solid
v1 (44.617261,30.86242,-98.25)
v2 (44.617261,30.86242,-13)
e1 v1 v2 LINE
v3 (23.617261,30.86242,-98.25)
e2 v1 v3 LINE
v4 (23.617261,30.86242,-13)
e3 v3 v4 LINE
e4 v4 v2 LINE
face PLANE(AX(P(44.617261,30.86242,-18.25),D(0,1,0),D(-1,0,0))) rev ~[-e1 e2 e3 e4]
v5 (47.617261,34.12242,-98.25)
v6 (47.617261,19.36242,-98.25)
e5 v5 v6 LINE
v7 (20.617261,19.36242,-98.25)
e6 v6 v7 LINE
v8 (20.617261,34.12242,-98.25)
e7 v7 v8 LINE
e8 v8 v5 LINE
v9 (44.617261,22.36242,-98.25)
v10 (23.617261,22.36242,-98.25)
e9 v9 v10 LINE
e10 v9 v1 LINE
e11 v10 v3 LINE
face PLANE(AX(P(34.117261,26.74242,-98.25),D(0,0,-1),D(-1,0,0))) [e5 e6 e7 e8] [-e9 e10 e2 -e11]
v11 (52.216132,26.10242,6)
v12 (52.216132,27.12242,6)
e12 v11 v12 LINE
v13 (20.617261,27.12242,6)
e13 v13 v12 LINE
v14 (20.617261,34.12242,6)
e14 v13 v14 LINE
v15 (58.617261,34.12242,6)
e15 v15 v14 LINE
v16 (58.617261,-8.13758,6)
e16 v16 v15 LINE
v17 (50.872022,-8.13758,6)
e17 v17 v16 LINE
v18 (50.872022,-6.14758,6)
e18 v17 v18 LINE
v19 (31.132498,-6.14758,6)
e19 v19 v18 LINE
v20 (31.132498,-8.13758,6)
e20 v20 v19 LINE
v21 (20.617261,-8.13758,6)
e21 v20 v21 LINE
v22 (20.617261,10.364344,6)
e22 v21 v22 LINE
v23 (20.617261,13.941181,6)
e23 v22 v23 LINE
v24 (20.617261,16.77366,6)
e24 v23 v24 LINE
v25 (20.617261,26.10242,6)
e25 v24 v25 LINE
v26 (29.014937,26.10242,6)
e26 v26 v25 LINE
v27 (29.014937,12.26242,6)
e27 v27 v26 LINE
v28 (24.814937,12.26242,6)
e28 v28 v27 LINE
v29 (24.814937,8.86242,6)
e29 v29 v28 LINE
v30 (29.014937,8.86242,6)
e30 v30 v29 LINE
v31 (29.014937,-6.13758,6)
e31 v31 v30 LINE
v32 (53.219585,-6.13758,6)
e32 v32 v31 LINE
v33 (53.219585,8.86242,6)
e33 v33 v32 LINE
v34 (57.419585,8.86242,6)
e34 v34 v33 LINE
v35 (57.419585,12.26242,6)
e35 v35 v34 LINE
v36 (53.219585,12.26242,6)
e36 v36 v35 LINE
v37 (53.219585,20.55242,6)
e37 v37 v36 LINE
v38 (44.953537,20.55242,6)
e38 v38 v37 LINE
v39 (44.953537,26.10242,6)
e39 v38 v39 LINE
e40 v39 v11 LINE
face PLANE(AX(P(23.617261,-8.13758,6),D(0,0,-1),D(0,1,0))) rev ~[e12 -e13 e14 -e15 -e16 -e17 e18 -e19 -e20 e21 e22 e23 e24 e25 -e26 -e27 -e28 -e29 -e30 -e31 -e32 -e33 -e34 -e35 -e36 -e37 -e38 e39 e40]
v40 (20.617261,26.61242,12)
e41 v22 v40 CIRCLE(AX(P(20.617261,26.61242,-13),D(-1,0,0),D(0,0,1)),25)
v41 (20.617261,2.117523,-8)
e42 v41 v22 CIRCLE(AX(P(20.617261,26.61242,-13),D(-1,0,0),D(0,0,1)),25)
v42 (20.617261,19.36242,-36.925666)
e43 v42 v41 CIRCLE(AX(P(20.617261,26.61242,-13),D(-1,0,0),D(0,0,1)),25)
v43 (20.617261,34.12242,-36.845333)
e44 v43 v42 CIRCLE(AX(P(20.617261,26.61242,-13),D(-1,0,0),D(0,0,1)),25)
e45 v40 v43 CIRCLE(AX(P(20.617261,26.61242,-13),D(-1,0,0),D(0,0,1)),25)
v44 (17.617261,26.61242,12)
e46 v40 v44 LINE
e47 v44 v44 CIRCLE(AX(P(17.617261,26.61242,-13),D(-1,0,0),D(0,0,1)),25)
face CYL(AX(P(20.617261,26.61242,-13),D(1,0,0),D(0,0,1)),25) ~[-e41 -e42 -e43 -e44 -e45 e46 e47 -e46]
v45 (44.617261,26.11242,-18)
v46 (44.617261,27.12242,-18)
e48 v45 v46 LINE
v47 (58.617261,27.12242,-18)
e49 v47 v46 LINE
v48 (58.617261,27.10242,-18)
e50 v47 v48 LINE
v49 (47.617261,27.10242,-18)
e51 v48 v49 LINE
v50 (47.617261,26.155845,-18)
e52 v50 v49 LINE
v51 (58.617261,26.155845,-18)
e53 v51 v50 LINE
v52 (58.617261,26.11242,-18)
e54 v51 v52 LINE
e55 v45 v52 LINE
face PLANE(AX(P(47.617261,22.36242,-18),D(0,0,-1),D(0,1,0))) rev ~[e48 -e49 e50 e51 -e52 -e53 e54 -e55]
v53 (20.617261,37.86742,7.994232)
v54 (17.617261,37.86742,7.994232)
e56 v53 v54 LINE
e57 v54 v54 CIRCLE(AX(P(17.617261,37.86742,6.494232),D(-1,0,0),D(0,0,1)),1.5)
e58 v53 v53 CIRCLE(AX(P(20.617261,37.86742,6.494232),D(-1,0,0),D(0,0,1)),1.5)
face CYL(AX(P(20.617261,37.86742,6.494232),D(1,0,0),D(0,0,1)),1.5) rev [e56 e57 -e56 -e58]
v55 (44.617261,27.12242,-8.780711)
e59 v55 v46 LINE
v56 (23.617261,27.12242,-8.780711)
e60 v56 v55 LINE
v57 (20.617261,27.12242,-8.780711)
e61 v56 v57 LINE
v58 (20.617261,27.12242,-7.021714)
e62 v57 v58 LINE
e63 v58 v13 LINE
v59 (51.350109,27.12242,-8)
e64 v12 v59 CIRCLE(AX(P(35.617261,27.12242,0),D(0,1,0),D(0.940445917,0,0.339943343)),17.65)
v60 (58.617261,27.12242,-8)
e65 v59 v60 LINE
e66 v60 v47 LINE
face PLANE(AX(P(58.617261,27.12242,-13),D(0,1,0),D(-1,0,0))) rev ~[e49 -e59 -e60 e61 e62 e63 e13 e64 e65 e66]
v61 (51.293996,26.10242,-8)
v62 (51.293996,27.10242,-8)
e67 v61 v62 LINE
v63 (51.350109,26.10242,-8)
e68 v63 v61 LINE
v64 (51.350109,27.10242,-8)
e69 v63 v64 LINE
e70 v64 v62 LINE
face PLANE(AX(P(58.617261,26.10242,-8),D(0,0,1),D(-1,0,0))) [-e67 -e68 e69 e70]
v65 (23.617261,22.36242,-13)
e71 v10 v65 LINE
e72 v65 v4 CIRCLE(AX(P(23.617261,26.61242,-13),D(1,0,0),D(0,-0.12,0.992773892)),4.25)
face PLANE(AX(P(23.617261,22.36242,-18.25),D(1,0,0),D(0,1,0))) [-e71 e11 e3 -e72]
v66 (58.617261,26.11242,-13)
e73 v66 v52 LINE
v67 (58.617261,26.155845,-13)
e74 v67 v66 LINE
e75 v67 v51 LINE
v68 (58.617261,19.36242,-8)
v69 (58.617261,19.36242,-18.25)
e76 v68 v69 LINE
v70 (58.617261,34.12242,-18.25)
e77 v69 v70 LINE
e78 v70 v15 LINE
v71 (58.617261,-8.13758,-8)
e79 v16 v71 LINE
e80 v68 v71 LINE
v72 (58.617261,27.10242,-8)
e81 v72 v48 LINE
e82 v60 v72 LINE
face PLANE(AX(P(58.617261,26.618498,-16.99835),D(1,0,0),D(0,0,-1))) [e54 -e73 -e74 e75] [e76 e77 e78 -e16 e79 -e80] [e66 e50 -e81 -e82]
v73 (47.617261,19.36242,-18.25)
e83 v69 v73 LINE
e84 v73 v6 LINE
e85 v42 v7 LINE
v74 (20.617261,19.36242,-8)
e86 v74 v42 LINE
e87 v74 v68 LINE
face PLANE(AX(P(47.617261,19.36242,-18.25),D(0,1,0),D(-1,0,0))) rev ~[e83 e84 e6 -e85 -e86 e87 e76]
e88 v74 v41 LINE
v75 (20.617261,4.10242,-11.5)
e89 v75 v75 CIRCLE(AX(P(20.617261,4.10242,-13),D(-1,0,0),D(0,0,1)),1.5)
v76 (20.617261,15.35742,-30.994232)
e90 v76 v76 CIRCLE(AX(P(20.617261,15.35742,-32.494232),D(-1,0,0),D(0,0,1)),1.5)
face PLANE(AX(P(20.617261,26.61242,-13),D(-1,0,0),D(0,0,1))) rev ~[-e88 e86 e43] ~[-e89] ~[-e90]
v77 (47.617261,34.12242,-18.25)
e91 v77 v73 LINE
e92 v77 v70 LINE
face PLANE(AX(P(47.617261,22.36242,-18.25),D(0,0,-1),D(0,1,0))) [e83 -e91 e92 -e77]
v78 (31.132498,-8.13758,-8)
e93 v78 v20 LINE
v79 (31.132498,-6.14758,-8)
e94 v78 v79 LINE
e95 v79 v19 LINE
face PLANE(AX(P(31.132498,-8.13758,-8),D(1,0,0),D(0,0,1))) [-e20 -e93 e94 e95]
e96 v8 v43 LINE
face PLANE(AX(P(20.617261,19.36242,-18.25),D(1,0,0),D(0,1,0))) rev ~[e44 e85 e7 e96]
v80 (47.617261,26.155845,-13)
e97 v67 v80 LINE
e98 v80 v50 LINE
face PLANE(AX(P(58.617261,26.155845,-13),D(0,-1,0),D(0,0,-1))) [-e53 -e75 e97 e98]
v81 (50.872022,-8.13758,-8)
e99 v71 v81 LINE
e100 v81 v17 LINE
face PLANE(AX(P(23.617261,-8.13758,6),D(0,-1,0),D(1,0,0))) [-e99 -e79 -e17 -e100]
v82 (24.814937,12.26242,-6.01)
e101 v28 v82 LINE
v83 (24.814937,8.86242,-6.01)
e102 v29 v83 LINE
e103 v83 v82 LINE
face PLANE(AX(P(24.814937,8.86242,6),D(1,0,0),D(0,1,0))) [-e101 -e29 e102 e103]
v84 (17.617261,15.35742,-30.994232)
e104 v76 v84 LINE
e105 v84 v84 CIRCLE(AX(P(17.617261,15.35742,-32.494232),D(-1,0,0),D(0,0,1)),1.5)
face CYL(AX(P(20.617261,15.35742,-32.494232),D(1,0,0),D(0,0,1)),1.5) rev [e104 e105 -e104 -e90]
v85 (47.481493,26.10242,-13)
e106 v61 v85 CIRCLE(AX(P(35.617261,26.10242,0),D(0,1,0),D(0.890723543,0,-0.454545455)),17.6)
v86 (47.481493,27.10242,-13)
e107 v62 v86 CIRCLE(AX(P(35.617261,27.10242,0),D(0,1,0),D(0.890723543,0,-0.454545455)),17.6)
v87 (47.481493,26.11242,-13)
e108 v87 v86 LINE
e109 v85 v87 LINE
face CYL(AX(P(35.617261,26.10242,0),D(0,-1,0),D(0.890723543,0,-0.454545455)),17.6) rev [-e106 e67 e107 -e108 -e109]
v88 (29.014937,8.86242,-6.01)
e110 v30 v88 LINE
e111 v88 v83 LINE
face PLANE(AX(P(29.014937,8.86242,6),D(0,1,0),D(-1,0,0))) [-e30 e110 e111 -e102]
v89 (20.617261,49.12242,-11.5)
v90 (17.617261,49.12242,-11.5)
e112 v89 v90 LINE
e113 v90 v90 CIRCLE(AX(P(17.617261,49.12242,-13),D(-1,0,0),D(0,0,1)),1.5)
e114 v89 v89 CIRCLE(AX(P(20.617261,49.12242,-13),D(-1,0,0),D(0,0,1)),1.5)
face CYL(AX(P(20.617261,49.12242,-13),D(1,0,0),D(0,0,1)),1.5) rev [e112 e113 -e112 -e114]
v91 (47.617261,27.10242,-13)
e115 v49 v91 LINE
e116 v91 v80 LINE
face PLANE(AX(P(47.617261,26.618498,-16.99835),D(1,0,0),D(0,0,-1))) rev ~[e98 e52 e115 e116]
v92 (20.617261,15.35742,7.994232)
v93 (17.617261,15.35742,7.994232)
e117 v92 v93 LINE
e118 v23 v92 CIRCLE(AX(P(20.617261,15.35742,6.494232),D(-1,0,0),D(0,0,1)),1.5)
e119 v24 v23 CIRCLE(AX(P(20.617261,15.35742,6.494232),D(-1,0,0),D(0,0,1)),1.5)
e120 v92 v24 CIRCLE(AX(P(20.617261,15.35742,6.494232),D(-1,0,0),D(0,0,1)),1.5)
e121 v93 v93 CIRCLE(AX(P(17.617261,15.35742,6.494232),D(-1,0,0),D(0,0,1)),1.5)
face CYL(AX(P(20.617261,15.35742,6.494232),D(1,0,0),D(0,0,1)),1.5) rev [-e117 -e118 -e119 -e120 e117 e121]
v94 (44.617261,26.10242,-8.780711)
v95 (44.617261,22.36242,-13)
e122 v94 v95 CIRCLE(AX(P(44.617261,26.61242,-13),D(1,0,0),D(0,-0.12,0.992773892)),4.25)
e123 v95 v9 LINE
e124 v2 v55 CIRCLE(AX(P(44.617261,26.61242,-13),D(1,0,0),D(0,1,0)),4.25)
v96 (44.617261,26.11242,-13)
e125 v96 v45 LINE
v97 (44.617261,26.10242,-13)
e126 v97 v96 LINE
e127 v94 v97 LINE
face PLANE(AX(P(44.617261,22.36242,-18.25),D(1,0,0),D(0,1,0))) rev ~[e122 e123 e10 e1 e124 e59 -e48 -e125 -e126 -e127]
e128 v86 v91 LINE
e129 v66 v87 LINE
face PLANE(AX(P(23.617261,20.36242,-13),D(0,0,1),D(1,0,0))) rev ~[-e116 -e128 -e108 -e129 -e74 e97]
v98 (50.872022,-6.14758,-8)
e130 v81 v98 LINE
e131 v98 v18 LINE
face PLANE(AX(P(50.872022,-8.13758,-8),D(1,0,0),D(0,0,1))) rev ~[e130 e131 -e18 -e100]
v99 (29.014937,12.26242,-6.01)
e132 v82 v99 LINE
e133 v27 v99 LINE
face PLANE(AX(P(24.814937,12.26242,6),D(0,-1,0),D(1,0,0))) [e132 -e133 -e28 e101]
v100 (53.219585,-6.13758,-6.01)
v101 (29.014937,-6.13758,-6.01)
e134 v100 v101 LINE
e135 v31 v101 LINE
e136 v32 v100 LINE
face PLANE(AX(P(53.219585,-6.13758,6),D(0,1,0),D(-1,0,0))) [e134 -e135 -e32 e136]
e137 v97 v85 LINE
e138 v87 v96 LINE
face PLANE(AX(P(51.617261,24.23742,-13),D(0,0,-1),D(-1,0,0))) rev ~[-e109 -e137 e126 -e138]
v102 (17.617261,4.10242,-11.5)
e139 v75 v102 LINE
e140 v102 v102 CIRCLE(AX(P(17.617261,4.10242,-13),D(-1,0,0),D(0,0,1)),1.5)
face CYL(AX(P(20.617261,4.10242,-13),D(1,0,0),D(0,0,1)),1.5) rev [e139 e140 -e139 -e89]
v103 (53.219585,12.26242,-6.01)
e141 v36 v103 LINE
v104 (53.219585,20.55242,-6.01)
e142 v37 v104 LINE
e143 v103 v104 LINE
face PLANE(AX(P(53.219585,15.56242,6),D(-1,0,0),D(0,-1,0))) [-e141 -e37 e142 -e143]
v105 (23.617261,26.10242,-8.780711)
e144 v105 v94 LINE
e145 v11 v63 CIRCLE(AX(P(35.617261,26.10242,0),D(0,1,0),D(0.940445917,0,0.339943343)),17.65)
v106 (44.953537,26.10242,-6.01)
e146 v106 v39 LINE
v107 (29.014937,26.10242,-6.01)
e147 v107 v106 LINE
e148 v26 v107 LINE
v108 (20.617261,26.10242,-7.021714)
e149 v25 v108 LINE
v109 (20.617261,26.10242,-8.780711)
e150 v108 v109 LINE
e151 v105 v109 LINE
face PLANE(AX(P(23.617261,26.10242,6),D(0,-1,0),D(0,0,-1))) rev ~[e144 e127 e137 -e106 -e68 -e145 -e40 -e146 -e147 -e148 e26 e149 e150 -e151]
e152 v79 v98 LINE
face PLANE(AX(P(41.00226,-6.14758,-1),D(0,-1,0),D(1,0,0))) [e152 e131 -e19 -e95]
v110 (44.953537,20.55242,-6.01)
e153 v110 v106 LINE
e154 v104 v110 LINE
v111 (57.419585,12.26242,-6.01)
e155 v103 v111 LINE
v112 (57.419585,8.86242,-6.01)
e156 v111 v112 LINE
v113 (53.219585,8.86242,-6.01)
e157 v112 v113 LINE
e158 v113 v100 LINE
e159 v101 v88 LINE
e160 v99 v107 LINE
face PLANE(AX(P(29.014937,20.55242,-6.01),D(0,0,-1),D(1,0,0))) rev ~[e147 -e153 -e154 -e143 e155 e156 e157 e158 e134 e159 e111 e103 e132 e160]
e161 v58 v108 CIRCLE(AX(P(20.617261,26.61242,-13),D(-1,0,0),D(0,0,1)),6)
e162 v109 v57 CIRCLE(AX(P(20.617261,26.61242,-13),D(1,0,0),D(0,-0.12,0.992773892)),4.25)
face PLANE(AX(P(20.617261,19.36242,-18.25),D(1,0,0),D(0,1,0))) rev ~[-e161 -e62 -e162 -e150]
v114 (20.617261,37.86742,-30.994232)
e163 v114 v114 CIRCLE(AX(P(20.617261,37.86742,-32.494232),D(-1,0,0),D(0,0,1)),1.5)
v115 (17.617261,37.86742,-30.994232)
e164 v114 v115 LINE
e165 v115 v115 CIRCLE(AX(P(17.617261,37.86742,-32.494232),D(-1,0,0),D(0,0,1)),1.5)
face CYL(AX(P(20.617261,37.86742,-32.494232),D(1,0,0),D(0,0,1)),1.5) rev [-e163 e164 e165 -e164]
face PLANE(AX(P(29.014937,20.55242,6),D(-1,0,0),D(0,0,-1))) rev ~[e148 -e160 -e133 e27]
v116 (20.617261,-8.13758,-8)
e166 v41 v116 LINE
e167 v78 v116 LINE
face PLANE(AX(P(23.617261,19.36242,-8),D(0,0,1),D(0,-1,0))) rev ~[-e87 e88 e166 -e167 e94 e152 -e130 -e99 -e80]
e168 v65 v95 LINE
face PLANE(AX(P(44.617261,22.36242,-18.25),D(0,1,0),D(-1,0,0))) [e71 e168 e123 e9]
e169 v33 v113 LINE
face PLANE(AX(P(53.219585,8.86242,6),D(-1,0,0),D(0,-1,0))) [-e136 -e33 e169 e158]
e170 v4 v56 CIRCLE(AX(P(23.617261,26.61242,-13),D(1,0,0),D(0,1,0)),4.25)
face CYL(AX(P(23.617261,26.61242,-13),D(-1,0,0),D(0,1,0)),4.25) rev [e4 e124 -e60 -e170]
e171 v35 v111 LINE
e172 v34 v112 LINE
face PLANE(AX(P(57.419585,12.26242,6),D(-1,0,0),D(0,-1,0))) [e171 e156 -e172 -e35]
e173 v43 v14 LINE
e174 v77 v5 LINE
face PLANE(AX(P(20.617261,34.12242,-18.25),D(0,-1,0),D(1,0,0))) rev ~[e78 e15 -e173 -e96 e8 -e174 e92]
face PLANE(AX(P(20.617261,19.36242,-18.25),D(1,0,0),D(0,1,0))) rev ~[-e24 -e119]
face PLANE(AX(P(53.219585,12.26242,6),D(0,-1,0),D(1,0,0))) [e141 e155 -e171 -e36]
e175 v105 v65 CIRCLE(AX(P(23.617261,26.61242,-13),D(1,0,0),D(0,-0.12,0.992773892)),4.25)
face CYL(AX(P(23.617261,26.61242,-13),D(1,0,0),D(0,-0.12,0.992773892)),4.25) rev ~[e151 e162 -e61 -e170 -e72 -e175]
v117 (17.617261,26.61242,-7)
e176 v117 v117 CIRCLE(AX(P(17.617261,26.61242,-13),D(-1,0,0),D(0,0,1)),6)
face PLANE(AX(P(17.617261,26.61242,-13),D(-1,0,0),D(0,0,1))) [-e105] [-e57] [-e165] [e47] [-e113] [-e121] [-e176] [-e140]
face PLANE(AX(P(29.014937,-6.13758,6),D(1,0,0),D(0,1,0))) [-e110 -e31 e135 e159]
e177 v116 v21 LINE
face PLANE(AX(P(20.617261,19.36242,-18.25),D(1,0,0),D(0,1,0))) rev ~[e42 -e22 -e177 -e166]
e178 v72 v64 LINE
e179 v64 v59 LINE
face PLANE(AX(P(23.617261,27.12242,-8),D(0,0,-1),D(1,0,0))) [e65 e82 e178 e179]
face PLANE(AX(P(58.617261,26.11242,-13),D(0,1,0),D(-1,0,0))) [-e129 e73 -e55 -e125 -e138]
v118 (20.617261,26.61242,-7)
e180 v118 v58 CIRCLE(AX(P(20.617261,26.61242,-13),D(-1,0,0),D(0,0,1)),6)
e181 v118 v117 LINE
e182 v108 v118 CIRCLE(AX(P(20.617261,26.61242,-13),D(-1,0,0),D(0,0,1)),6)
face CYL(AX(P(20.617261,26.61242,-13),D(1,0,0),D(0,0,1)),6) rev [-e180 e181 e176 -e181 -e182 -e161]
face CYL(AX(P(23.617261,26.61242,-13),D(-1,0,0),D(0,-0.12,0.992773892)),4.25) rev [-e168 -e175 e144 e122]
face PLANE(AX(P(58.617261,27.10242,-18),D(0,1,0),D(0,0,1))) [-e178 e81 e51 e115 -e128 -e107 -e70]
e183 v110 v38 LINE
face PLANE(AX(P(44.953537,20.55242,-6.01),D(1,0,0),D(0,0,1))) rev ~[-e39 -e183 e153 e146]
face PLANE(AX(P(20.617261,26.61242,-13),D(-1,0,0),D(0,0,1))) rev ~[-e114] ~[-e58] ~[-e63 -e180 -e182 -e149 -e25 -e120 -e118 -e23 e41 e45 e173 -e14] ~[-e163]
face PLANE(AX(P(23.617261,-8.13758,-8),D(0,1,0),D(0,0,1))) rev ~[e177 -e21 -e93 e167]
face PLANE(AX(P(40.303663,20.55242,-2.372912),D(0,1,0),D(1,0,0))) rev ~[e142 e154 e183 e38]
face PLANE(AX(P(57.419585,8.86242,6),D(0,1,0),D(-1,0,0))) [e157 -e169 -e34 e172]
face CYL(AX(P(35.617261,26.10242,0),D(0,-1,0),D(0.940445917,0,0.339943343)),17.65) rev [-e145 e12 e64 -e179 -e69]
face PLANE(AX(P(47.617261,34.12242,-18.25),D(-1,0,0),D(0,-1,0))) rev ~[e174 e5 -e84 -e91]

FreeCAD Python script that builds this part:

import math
import FreeCAD as App
import Part
import Sketcher

V = App.Vector


def add_polygon(sketch, points):
    """Adds a closed chain of lines whose ends are joined by coincident constraints."""
    first, n = sketch.GeometryCount, len(points)
    for a, b in zip(points, points[1:] + points[:1]):
        sketch.addGeometry(Part.LineSegment(App.Vector(*a, 0), App.Vector(*b, 0)), False)
    for i in range(n):
        sketch.addConstraint(Sketcher.Constraint("Coincident", first + i, 2, first + (i + 1) % n, 1))

doc = App.newDocument("Part")
body = doc.addObject("PartDesign::Body", "Body")

# Sketch on XY plane
sketch1 = doc.addObject("Sketcher::SketchObject", "Sketch")
body.addObject(sketch1)
sketch1.AttachmentSupport = (doc.XY_Plane, [""])
sketch1.MapMode = "FlatFace"
sketch1.AttachmentOffset = App.Placement(V(0, 0, 6), App.Rotation())
add_polygon(sketch1, [(58.6, 15.6), (53.2, 15.6), (53.2, 12.3), (57.4, 12.3), (57.4, 8.9), (53.2, 8.9), (53.2, -6.1), (29, -6.1), (29, 8.9), (24.8, 8.9), (24.8, 12.3), (29, 12.3), (29, 15.6), (23.6, 15.6), (23.6, -8.1), (58.6, -8.1)])  # lines 0-15
sketch1.addConstraint(Sketcher.Constraint("Horizontal", 0))
sketch1.addConstraint(Sketcher.Constraint("Vertical", 1))
sketch1.addConstraint(Sketcher.Constraint("Horizontal", 2))
sketch1.addConstraint(Sketcher.Constraint("Vertical", 3))
sketch1.addConstraint(Sketcher.Constraint("Horizontal", 4))
sketch1.addConstraint(Sketcher.Constraint("Vertical", 5))
sketch1.addConstraint(Sketcher.Constraint("Horizontal", 6))
sketch1.addConstraint(Sketcher.Constraint("Vertical", 7))
sketch1.addConstraint(Sketcher.Constraint("Horizontal", 8))
sketch1.addConstraint(Sketcher.Constraint("Vertical", 9))
sketch1.addConstraint(Sketcher.Constraint("Horizontal", 10))
sketch1.addConstraint(Sketcher.Constraint("Vertical", 11))
sketch1.addConstraint(Sketcher.Constraint("Horizontal", 12))
sketch1.addConstraint(Sketcher.Constraint("Vertical", 13))
sketch1.addConstraint(Sketcher.Constraint("Horizontal", 14))
sketch1.addConstraint(Sketcher.Constraint("Vertical", 15))
sketch1.addConstraint(Sketcher.Constraint("Horizontal", 4, 2, 7, 2))
sketch1.addConstraint(Sketcher.Constraint("Horizontal", 2, 2, 9, 2))
sketch1.addConstraint(Sketcher.Constraint("Horizontal", 0, 2, 11, 2))
sketch1.addConstraint(Sketcher.Constraint("Vertical", 1, 2, 4, 2))
sketch1.addConstraint(Sketcher.Constraint("Vertical", 7, 2, 10, 2))
sketch1.addConstraint(Sketcher.Constraint("Equal", 4, 8))
sketch1.addConstraint(Sketcher.Constraint("Equal", 0, 12))
sketch1.addConstraint(Sketcher.Constraint("DistanceX", 14, 1, 14, 2, 35.0))
sketch1.addConstraint(Sketcher.Constraint("DistanceY", 5, 2, 5, 1, 15.0))
sketch1.addConstraint(Sketcher.Constraint("DistanceX", 2, 1, 2, 2, 4.2))
sketch1.addConstraint(Sketcher.Constraint("DistanceY", 1, 2, 1, 1, 3.3))
sketch1.addConstraint(Sketcher.Constraint("DistanceY", 3, 2, 3, 1, 3.4))
sketch1.addConstraint(Sketcher.Constraint("DistanceY", 13, 2, 13, 1, 23.7))
sketch1.addConstraint(Sketcher.Constraint("DistanceX", 6, 2, 6, 1, 24.204649))
sketch1.addConstraint(Sketcher.Constraint("DistanceY", -1, 1, 0, 2, 15.56242))
sketch1.addConstraint(Sketcher.Constraint("DistanceX", -1, 1, 12, 2, 23.617261))
pad1 = doc.addObject("PartDesign::Pad", "Pad")
body.addObject(pad1)
pad1.Profile = sketch1
pad1.Length = 14
pad1.Reversed = True

# Sketch on XY plane
sketch2 = doc.addObject("Sketcher::SketchObject", "Sketch001")
body.addObject(sketch2)
sketch2.AttachmentSupport = (doc.XY_Plane, [""])
sketch2.MapMode = "FlatFace"
sketch2.AttachmentOffset = App.Placement(V(0, 0, -8), App.Rotation())
add_polygon(sketch2, [(59, 16), (59, -8), (24, -8), (24, 16)])  # lines 0-3
sketch2.addConstraint(Sketcher.Constraint("Vertical", 0))
sketch2.addConstraint(Sketcher.Constraint("Horizontal", 1))
sketch2.addConstraint(Sketcher.Constraint("Vertical", 2))
sketch2.addConstraint(Sketcher.Constraint("Horizontal", 3))
sketch2.addConstraint(Sketcher.Constraint("DistanceY", 0, 2, 0, 1, 23.7))
sketch2.addConstraint(Sketcher.Constraint("DistanceX", 1, 2, 1, 1, 34.989164))
sketch2.addConstraint(Sketcher.Constraint("DistanceX", -1, 1, 0, 2, 58.617261))
sketch2.addConstraint(Sketcher.Constraint("DistanceY", 0, 2, -1, 1, 8.13758))
pad2 = doc.addObject("PartDesign::Pad", "Pad001")
body.addObject(pad2)
pad2.Profile = sketch2
pad2.Length = 1.99

# Sketch on XZ plane
sketch3 = doc.addObject("Sketcher::SketchObject", "Sketch002")
body.addObject(sketch3)
sketch3.AttachmentSupport = (doc.XZ_Plane, [""])
sketch3.MapMode = "FlatFace"
sketch3.AttachmentOffset = App.Placement(V(0, 0, 8.13758), App.Rotation())
add_polygon(sketch3, [(31, 6), (31, -8), (51, -8), (51, 6)])  # lines 0-3
sketch3.addConstraint(Sketcher.Constraint("Vertical", 0))
sketch3.addConstraint(Sketcher.Constraint("Horizontal", 1))
sketch3.addConstraint(Sketcher.Constraint("Vertical", 2))
sketch3.addConstraint(Sketcher.Constraint("Horizontal", 3))
sketch3.addConstraint(Sketcher.Constraint("DistanceY", 0, 2, 0, 1, 14.0))
sketch3.addConstraint(Sketcher.Constraint("DistanceY", 0, 2, -1, 1, 8.0))
sketch3.addConstraint(Sketcher.Constraint("DistanceX", -1, 1, 0, 2, 31.132498))
sketch3.addConstraint(Sketcher.Constraint("DistanceX", 1, 1, 1, 2, 19.739524))
pocket1 = doc.addObject("PartDesign::Pocket", "Pocket")
body.addObject(pocket1)
pocket1.Profile = sketch3
pocket1.Length = 1.99

# Sketch on XZ plane
sketch4 = doc.addObject("Sketcher::SketchObject", "Sketch003")
body.addObject(sketch4)
sketch4.AttachmentSupport = (doc.XZ_Plane, [""])
sketch4.MapMode = "FlatFace"
sketch4.AttachmentOffset = App.Placement(V(0, 0, -15.56242), App.Rotation())
add_polygon(sketch4, [(24, 6), (29, 6), (29, -6), (53, -6), (53, 6), (59, 6), (59, -8), (24, -8)])  # lines 0-7
sketch4.addConstraint(Sketcher.Constraint("Horizontal", 0))
sketch4.addConstraint(Sketcher.Constraint("Vertical", 1))
sketch4.addConstraint(Sketcher.Constraint("Horizontal", 2))
sketch4.addConstraint(Sketcher.Constraint("Vertical", 3))
sketch4.addConstraint(Sketcher.Constraint("Horizontal", 4))
sketch4.addConstraint(Sketcher.Constraint("Vertical", 5))
sketch4.addConstraint(Sketcher.Constraint("Horizontal", 6))
sketch4.addConstraint(Sketcher.Constraint("Vertical", 7))
sketch4.addConstraint(Sketcher.Constraint("Horizontal", 0, 2, 3, 2))
sketch4.addConstraint(Sketcher.Constraint("Equal", 0, 4))
sketch4.addConstraint(Sketcher.Constraint("DistanceX", 6, 2, 6, 1, 35.0))
sketch4.addConstraint(Sketcher.Constraint("DistanceY", 5, 2, 5, 1, 14.0))
sketch4.addConstraint(Sketcher.Constraint("DistanceY", -1, 1, 0, 2, 6.0))
sketch4.addConstraint(Sketcher.Constraint("DistanceY", 1, 2, 1, 1, 12.01))
sketch4.addConstraint(Sketcher.Constraint("DistanceX", 2, 1, 2, 2, 24.204649))
sketch4.addConstraint(Sketcher.Constraint("DistanceX", -1, 1, 4, 2, 58.617261))
pad3 = doc.addObject("PartDesign::Pad", "Pad002")
body.addObject(pad3)
pad3.Profile = sketch4
pad3.Length = 4.99
pad3.Reversed = True

# Sketch on XZ plane
sketch5 = doc.addObject("Sketcher::SketchObject", "Sketch004")
body.addObject(sketch5)
sketch5.AttachmentSupport = (doc.XZ_Plane, [""])
sketch5.MapMode = "FlatFace"
sketch5.AttachmentOffset = App.Placement(V(0, 0, -20.55242), App.Rotation())
add_polygon(sketch5, [(24, 6), (29, 6), (29, -6), (45, -6), (45, 6), (59, 6), (59, -8), (24, -8)])  # lines 0-7
sketch5.addConstraint(Sketcher.Constraint("Horizontal", 0))
sketch5.addConstraint(Sketcher.Constraint("Vertical", 1))
sketch5.addConstraint(Sketcher.Constraint("Horizontal", 2))
sketch5.addConstraint(Sketcher.Constraint("Vertical", 3))
sketch5.addConstraint(Sketcher.Constraint("Horizontal", 4))
sketch5.addConstraint(Sketcher.Constraint("Vertical", 5))
sketch5.addConstraint(Sketcher.Constraint("Horizontal", 6))
sketch5.addConstraint(Sketcher.Constraint("Vertical", 7))
sketch5.addConstraint(Sketcher.Constraint("Horizontal", 0, 2, 3, 2))
sketch5.addConstraint(Sketcher.Constraint("DistanceX", 6, 2, 6, 1, 35.0))
sketch5.addConstraint(Sketcher.Constraint("DistanceY", 5, 2, 5, 1, 14.0))
sketch5.addConstraint(Sketcher.Constraint("DistanceY", -1, 1, 0, 2, 6.0))
sketch5.addConstraint(Sketcher.Constraint("DistanceY", 1, 2, 1, 1, 12.01))
sketch5.addConstraint(Sketcher.Constraint("DistanceX", 2, 1, 2, 2, 15.9386))
sketch5.addConstraint(Sketcher.Constraint("DistanceX", 0, 1, 0, 2, 5.397676))
sketch5.addConstraint(Sketcher.Constraint("DistanceX", -1, 1, 4, 2, 58.617261))
pad4 = doc.addObject("PartDesign::Pad", "Pad003")
body.addObject(pad4)
pad4.Profile = sketch5
pad4.Length = 5.55
pad4.Reversed = True

# Sketch on XZ plane
sketch6 = doc.addObject("Sketcher::SketchObject", "Sketch005")
body.addObject(sketch6)
sketch6.AttachmentSupport = (doc.XZ_Plane, [""])
sketch6.MapMode = "FlatFace"
sketch6.AttachmentOffset = App.Placement(V(0, 0, -26.10242), App.Rotation())
sketch6.addGeometry(Part.LineSegment(V(59, -8, 0), V(51, -8, 0)), False)
sketch6.addGeometry(Part.ArcOfCircle(Part.Circle(V(36, 0, 0), V(0, 0, 1), 18), math.radians(-27), math.radians(20)), False)
sketch6.addGeometry(Part.LineSegment(V(52, 6, 0), V(59, 6, 0)), False)
sketch6.addGeometry(Part.LineSegment(V(59, 6, 0), V(59, -8, 0)), False)
sketch6.addConstraint(Sketcher.Constraint("Coincident", 0, 2, 1, 1))
sketch6.addConstraint(Sketcher.Constraint("Coincident", 1, 2, 2, 1))
sketch6.addConstraint(Sketcher.Constraint("Coincident", 2, 2, 3, 1))
sketch6.addConstraint(Sketcher.Constraint("Coincident", 3, 2, 0, 1))
sketch6.addConstraint(Sketcher.Constraint("Horizontal", 0))
sketch6.addConstraint(Sketcher.Constraint("Horizontal", 2))
sketch6.addConstraint(Sketcher.Constraint("Vertical", 3))
sketch6.addConstraint(Sketcher.Constraint("PointOnObject", 1, 3, -1))
sketch6.addConstraint(Sketcher.Constraint("DistanceY", 3, 2, 3, 1, 14.0))
sketch6.addConstraint(Sketcher.Constraint("Radius", 1, 17.65))
sketch6.addConstraint(Sketcher.Constraint("DistanceY", 0, 2, -1, 1, 8.0))
sketch6.addConstraint(Sketcher.Constraint("DistanceX", 1, 3, 2, 2, 23.0))
sketch6.addConstraint(Sketcher.Constraint("DistanceX", -1, 1, 1, 3, 35.617261))
pad5 = doc.addObject("PartDesign::Pad", "Pad004")
body.addObject(pad5)
pad5.Profile = sketch6
pad5.Length = 1.02
pad5.Reversed = True

# Sketch on XZ plane
sketch7 = doc.addObject("Sketcher::SketchObject", "Sketch006")
body.addObject(sketch7)
sketch7.AttachmentSupport = (doc.XZ_Plane, [""])
sketch7.MapMode = "FlatFace"
sketch7.AttachmentOffset = App.Placement(V(0, 0, -27.12242), App.Rotation())
add_polygon(sketch7, [(24, -8), (24, 6), (59, 6), (59, -8)])  # lines 0-3
sketch7.addConstraint(Sketcher.Constraint("Vertical", 0))
sketch7.addConstraint(Sketcher.Constraint("Horizontal", 1))
sketch7.addConstraint(Sketcher.Constraint("Vertical", 2))
sketch7.addConstraint(Sketcher.Constraint("Horizontal", 3))
sketch7.addConstraint(Sketcher.Constraint("DistanceX", 1, 1, 1, 2, 35.0))
sketch7.addConstraint(Sketcher.Constraint("DistanceY", 0, 1, 0, 2, 14.0))
sketch7.addConstraint(Sketcher.Constraint("DistanceY", -1, 1, 0, 2, 6.0))
sketch7.addConstraint(Sketcher.Constraint("DistanceX", -1, 1, 0, 2, 23.617261))
pad6 = doc.addObject("PartDesign::Pad", "Pad005")
body.addObject(pad6)
pad6.Profile = sketch7
pad6.Length = 4
pad6.Reversed = True

# Sketch on YZ plane
sketch8 = doc.addObject("Sketcher::SketchObject", "Sketch007")
body.addObject(sketch8)
sketch8.AttachmentSupport = (doc.YZ_Plane, [""])
sketch8.MapMode = "FlatFace"
sketch8.AttachmentOffset = App.Placement(V(0, 0, 23.617261), App.Rotation())
sketch8.addGeometry(Part.LineSegment(V(27.12, -8.78, 0), V(27.12, -8, 0)), False)
sketch8.addGeometry(Part.LineSegment(V(27.12, -8, 0), V(31.12, -8, 0)), False)
sketch8.addGeometry(Part.LineSegment(V(31.12, -8, 0), V(31.12, -13, 0)), False)
sketch8.addGeometry(Part.LineSegment(V(31.12, -13, 0), V(30.86, -13, 0)), False)
sketch8.addGeometry(Part.ArcOfCircle(Part.Circle(V(26.61, -13, 0), V(0, 0, 1), 4.25), math.radians(0), math.radians(83)), False)
sketch8.addGeometry(Part.LineSegment(V(26.1, -8, 0), V(26.1, -8.78, 0)), False)
sketch8.addGeometry(Part.ArcOfCircle(Part.Circle(V(26.61, -13, 0), V(0, 0, 1), 4.25), math.radians(97), math.radians(180)), False)
sketch8.addGeometry(Part.LineSegment(V(22.36, -13, 0), V(20.36, -13, 0)), False)
sketch8.addGeometry(Part.LineSegment(V(20.36, -13, 0), V(20.36, -8, 0)), False)
sketch8.addGeometry(Part.LineSegment(V(20.36, -8, 0), V(26.1, -8, 0)), False)
sketch8.addConstraint(Sketcher.Constraint("Coincident", 0, 2, 1, 1))
sketch8.addConstraint(Sketcher.Constraint("Coincident", 1, 2, 2, 1))
sketch8.addConstraint(Sketcher.Constraint("Coincident", 2, 2, 3, 1))
sketch8.addConstraint(Sketcher.Constraint("Coincident", 3, 2, 4, 1))
sketch8.addConstraint(Sketcher.Constraint("Coincident", 4, 2, 0, 1))
sketch8.addConstraint(Sketcher.Constraint("Coincident", 5, 2, 6, 1))
sketch8.addConstraint(Sketcher.Constraint("Coincident", 6, 2, 7, 1))
sketch8.addConstraint(Sketcher.Constraint("Coincident", 7, 2, 8, 1))
sketch8.addConstraint(Sketcher.Constraint("Coincident", 8, 2, 9, 1))
sketch8.addConstraint(Sketcher.Constraint("Coincident", 9, 2, 5, 1))
sketch8.addConstraint(Sketcher.Constraint("Vertical", 0))
sketch8.addConstraint(Sketcher.Constraint("Horizontal", 1))
sketch8.addConstraint(Sketcher.Constraint("Vertical", 2))
sketch8.addConstraint(Sketcher.Constraint("Horizontal", 3))
sketch8.addConstraint(Sketcher.Constraint("Vertical", 5))
sketch8.addConstraint(Sketcher.Constraint("Horizontal", 7))
sketch8.addConstraint(Sketcher.Constraint("Vertical", 8))
sketch8.addConstraint(Sketcher.Constraint("Horizontal", 9))
sketch8.addConstraint(Sketcher.Constraint("Coincident", 6, 3, 4, 3))
sketch8.addConstraint(Sketcher.Constraint("Equal", 4, 6))
sketch8.addConstraint(Sketcher.Constraint("Horizontal", 6, 3, 2, 2))
sketch8.addConstraint(Sketcher.Constraint("Horizontal", 4, 2, 5, 2))
sketch8.addConstraint(Sketcher.Constraint("Horizontal", 3, 2, 6, 2))
sketch8.addConstraint(Sketcher.Constraint("Horizontal", 1, 2, 8, 2))
sketch8.addConstraint(Sketcher.Constraint("DistanceX", 1, 1, 1, 2, 4.0))
sketch8.addConstraint(Sketcher.Constraint("DistanceX", 7, 2, 7, 1, 2.0))
sketch8.addConstraint(Sketcher.Constraint("DistanceY", 2, 2, 2, 1, 5.0))
sketch8.addConstraint(Sketcher.Constraint("Radius", 4, 4.25))
sketch8.addConstraint(Sketcher.Constraint("DistanceY", 4, 3, -1, 1, 13.0))
sketch8.addConstraint(Sketcher.Constraint("DistanceX", 3, 2, 3, 1, 0.26))
sketch8.addConstraint(Sketcher.Constraint("DistanceX", -1, 1, 4, 3, 26.61242))
pad7 = doc.addObject("PartDesign::Pad", "Pad006")
body.addObject(pad7)
pad7.Profile = sketch8
pad7.Length = 21

# Sketch on YZ plane
sketch9 = doc.addObject("Sketcher::SketchObject", "Sketch008")
body.addObject(sketch9)
sketch9.AttachmentSupport = (doc.YZ_Plane, [""])
sketch9.MapMode = "FlatFace"
sketch9.AttachmentOffset = App.Placement(V(0, 0, 44.617261), App.Rotation())
add_polygon(sketch9, [(26.1, -8), (20.4, -8), (20.4, -13), (26.1, -13)])  # lines 0-3
add_polygon(sketch9, [(31.1, -8), (27.1, -8), (27.1, -13), (31.1, -13)])  # lines 4-7
sketch9.addConstraint(Sketcher.Constraint("Horizontal", 0))
sketch9.addConstraint(Sketcher.Constraint("Vertical", 1))
sketch9.addConstraint(Sketcher.Constraint("Horizontal", 2))
sketch9.addConstraint(Sketcher.Constraint("Vertical", 3))
sketch9.addConstraint(Sketcher.Constraint("Horizontal", 4))
sketch9.addConstraint(Sketcher.Constraint("Vertical", 5))
sketch9.addConstraint(Sketcher.Constraint("Horizontal", 6))
sketch9.addConstraint(Sketcher.Constraint("Vertical", 7))
sketch9.addConstraint(Sketcher.Constraint("Horizontal", 3, 2, 4, 2))
sketch9.addConstraint(Sketcher.Constraint("Horizontal", 2, 2, 5, 2))
sketch9.addConstraint(Sketcher.Constraint("DistanceX", 4, 2, 4, 1, 4.0))
sketch9.addConstraint(Sketcher.Constraint("DistanceY", 1, 2, 1, 1, 5.0))
sketch9.addConstraint(Sketcher.Constraint("DistanceY", 0, 2, -1, 1, 8.0))
sketch9.addConstraint(Sketcher.Constraint("DistanceX", 0, 2, 0, 1, 5.74))
sketch9.addConstraint(Sketcher.Constraint("DistanceX", 3, 2, 4, 2, 1.02))
sketch9.addConstraint(Sketcher.Constraint("DistanceX", -1, 1, 0, 2, 20.36242))
pad8 = doc.addObject("PartDesign::Pad", "Pad007")
body.addObject(pad8)
pad8.Profile = sketch9
pad8.Length = 14

# Sketch on XZ plane
sketch10 = doc.addObject("Sketcher::SketchObject", "Sketch009")
body.addObject(sketch10)
sketch10.AttachmentSupport = (doc.XZ_Plane, [""])
sketch10.MapMode = "FlatFace"
sketch10.AttachmentOffset = App.Placement(V(0, 0, -26.10242), App.Rotation())
sketch10.addGeometry(Part.LineSegment(V(59, -13, 0), V(47, -13, 0)), False)
sketch10.addGeometry(Part.ArcOfCircle(Part.Circle(V(36, 0, 0), V(0, 0, 1), 18), math.radians(-48), math.radians(-27)), False)
sketch10.addGeometry(Part.LineSegment(V(51, -8, 0), V(59, -8, 0)), False)
sketch10.addGeometry(Part.LineSegment(V(59, -8, 0), V(59, -13, 0)), False)
sketch10.addConstraint(Sketcher.Constraint("Coincident", 0, 2, 1, 1))
sketch10.addConstraint(Sketcher.Constraint("Coincident", 1, 2, 2, 1))
sketch10.addConstraint(Sketcher.Constraint("Coincident", 2, 2, 3, 1))
sketch10.addConstraint(Sketcher.Constraint("Coincident", 3, 2, 0, 1))
sketch10.addConstraint(Sketcher.Constraint("Horizontal", 0))
sketch10.addConstraint(Sketcher.Constraint("Horizontal", 2))
sketch10.addConstraint(Sketcher.Constraint("Vertical", 3))
sketch10.addConstraint(Sketcher.Constraint("PointOnObject", 1, 3, -1))
sketch10.addConstraint(Sketcher.Constraint("Radius", 1, 17.6))
sketch10.addConstraint(Sketcher.Constraint("DistanceY", 3, 2, 3, 1, 5.0))
sketch10.addConstraint(Sketcher.Constraint("DistanceY", 0, 2, -1, 1, 13.0))
sketch10.addConstraint(Sketcher.Constraint("DistanceX", 1, 3, 2, 2, 23.0))
sketch10.addConstraint(Sketcher.Constraint("DistanceX", -1, 1, 1, 3, 35.617261))
pad9 = doc.addObject("PartDesign::Pad", "Pad008")
body.addObject(pad9)
pad9.Profile = sketch10
pad9.Length = 1
pad9.Reversed = True

# Sketch on XZ plane
sketch11 = doc.addObject("Sketcher::SketchObject", "Sketch010")
body.addObject(sketch11)
sketch11.AttachmentSupport = (doc.XZ_Plane, [""])
sketch11.MapMode = "FlatFace"
sketch11.AttachmentOffset = App.Placement(V(0, 0, -31.12242), App.Rotation())
add_polygon(sketch11, [(24, -13), (24, 6), (59, 6), (59, -13)])  # lines 0-3
sketch11.addConstraint(Sketcher.Constraint("Vertical", 0))
sketch11.addConstraint(Sketcher.Constraint("Horizontal", 1))
sketch11.addConstraint(Sketcher.Constraint("Vertical", 2))
sketch11.addConstraint(Sketcher.Constraint("Horizontal", 3))
sketch11.addConstraint(Sketcher.Constraint("DistanceX", 1, 1, 1, 2, 35.0))
sketch11.addConstraint(Sketcher.Constraint("DistanceY", 0, 1, 0, 2, 19.0))
sketch11.addConstraint(Sketcher.Constraint("DistanceY", -1, 1, 0, 2, 6.0))
sketch11.addConstraint(Sketcher.Constraint("DistanceX", -1, 1, 0, 2, 23.617261))
pad10 = doc.addObject("PartDesign::Pad", "Pad009")
body.addObject(pad10)
pad10.Profile = sketch11
pad10.Length = 3
pad10.Reversed = True

# Sketch on XZ plane
sketch12 = doc.addObject("Sketcher::SketchObject", "Sketch011")
body.addObject(sketch12)
sketch12.AttachmentSupport = (doc.XZ_Plane, [""])
sketch12.MapMode = "FlatFace"
sketch12.AttachmentOffset = App.Placement(V(0, 0, -20.36242), App.Rotation())
add_polygon(sketch12, [(24, -8), (24, -13), (59, -13), (59, -8)])  # lines 0-3
sketch12.addConstraint(Sketcher.Constraint("Vertical", 0))
sketch12.addConstraint(Sketcher.Constraint("Horizontal", 1))
sketch12.addConstraint(Sketcher.Constraint("Vertical", 2))
sketch12.addConstraint(Sketcher.Constraint("Horizontal", 3))
sketch12.addConstraint(Sketcher.Constraint("DistanceX", 1, 1, 1, 2, 35.0))
sketch12.addConstraint(Sketcher.Constraint("DistanceY", 0, 2, 0, 1, 5.0))
sketch12.addConstraint(Sketcher.Constraint("DistanceY", 0, 2, -1, 1, 13.0))
sketch12.addConstraint(Sketcher.Constraint("DistanceX", -1, 1, 0, 2, 23.617261))
pad11 = doc.addObject("PartDesign::Pad", "Pad010")
body.addObject(pad11)
pad11.Profile = sketch12
pad11.Length = 1

# Sketch on YZ plane
sketch13 = doc.addObject("Sketcher::SketchObject", "Sketch012")
body.addObject(sketch13)
sketch13.AttachmentSupport = (doc.YZ_Plane, [""])
sketch13.MapMode = "FlatFace"
sketch13.AttachmentOffset = App.Placement(V(0, 0, 23.617261), App.Rotation())
sketch13.addGeometry(Part.LineSegment(V(19.4, -8, 0), V(-8.1, -8, 0)), False)
sketch13.addGeometry(Part.LineSegment(V(-8.1, -8, 0), V(-8.1, 6, 0)), False)
sketch13.addGeometry(Part.LineSegment(V(-8.1, 6, 0), V(26.1, 6, 0)), False)
sketch13.addGeometry(Part.LineSegment(V(26.1, 6, 0), V(26.1, -8.8, 0)), False)
sketch13.addGeometry(Part.ArcOfCircle(Part.Circle(V(26.6, -13, 0), V(0, 0, 1), 4.2), math.radians(97), math.radians(443)), False)
sketch13.addGeometry(Part.LineSegment(V(27.1, -8.8, 0), V(27.1, 6, 0)), False)
sketch13.addGeometry(Part.LineSegment(V(27.1, 6, 0), V(34.1, 6, 0)), False)
sketch13.addGeometry(Part.LineSegment(V(34.1, 6, 0), V(34.1, -18.2, 0)), False)
sketch13.addGeometry(Part.LineSegment(V(34.1, -18.2, 0), V(19.4, -18.2, 0)), False)
sketch13.addGeometry(Part.LineSegment(V(19.4, -18.2, 0), V(19.4, -8, 0)), False)
sketch13.addConstraint(Sketcher.Constraint("Coincident", 0, 2, 1, 1))
sketch13.addConstraint(Sketcher.Constraint("Coincident", 1, 2, 2, 1))
sketch13.addConstraint(Sketcher.Constraint("Coincident", 2, 2, 3, 1))
sketch13.addConstraint(Sketcher.Constraint("Coincident", 3, 2, 4, 1))
sketch13.addConstraint(Sketcher.Constraint("Coincident", 4, 2, 5, 1))
sketch13.addConstraint(Sketcher.Constraint("Coincident", 5, 2, 6, 1))
sketch13.addConstraint(Sketcher.Constraint("Coincident", 6, 2, 7, 1))
sketch13.addConstraint(Sketcher.Constraint("Coincident", 7, 2, 8, 1))
sketch13.addConstraint(Sketcher.Constraint("Coincident", 8, 2, 9, 1))
sketch13.addConstraint(Sketcher.Constraint("Coincident", 9, 2, 0, 1))
sketch13.addConstraint(Sketcher.Constraint("Horizontal", 0))
sketch13.addConstraint(Sketcher.Constraint("Vertical", 1))
sketch13.addConstraint(Sketcher.Constraint("Horizontal", 2))
sketch13.addConstraint(Sketcher.Constraint("Vertical", 3))
sketch13.addConstraint(Sketcher.Constraint("Vertical", 5))
sketch13.addConstraint(Sketcher.Constraint("Horizontal", 6))
sketch13.addConstraint(Sketcher.Constraint("Vertical", 7))
sketch13.addConstraint(Sketcher.Constraint("Horizontal", 8))
sketch13.addConstraint(Sketcher.Constraint("Vertical", 9))
sketch13.addConstraint(Sketcher.Constraint("Horizontal", 3, 2, 4, 2))
sketch13.addConstraint(Sketcher.Constraint("Horizontal", 2, 2, 5, 2))
sketch13.addConstraint(Sketcher.Constraint("DistanceX", 6, 1, 6, 2, 7.0))
sketch13.addConstraint(Sketcher.Constraint("DistanceY", 1, 1, 1, 2, 14.0))
sketch13.addConstraint(Sketcher.Constraint("Radius", 4, 4.25))
sketch13.addConstraint(Sketcher.Constraint("DistanceX", 0, 2, 0, 1, 27.5))
sketch13.addConstraint(Sketcher.Constraint("DistanceY", 4, 3, -1, 1, 13.0))
sketch13.addConstraint(Sketcher.Constraint("DistanceY", 0, 2, -1, 1, 8.0))
sketch13.addConstraint(Sketcher.Constraint("DistanceX", 2, 1, 2, 2, 34.24))
sketch13.addConstraint(Sketcher.Constraint("DistanceX", 8, 2, 8, 1, 14.76))
sketch13.addConstraint(Sketcher.Constraint("DistanceY", 7, 2, 7, 1, 24.25))
sketch13.addConstraint(Sketcher.Constraint("DistanceX", -1, 1, 4, 3, 26.61242))
pad12 = doc.addObject("PartDesign::Pad", "Pad011")
body.addObject(pad12)
pad12.Profile = sketch13
pad12.Length = 3
pad12.Reversed = True

# Sketch on YZ plane
sketch14 = doc.addObject("Sketcher::SketchObject", "Sketch013")
body.addObject(sketch14)
sketch14.AttachmentSupport = (doc.YZ_Plane, [""])
sketch14.MapMode = "FlatFace"
sketch14.AttachmentOffset = App.Placement(V(0, 0, 23.617261), App.Rotation())
add_polygon(sketch14, [(34.1, -13), (30.9, -13), (30.9, -18.2), (34.1, -18.2)])  # lines 0-3
add_polygon(sketch14, [(22.4, -13), (19.4, -13), (19.4, -18.2), (22.4, -18.2)])  # lines 4-7
sketch14.addConstraint(Sketcher.Constraint("Horizontal", 0))
sketch14.addConstraint(Sketcher.Constraint("Vertical", 1))
sketch14.addConstraint(Sketcher.Constraint("Horizontal", 2))
sketch14.addConstraint(Sketcher.Constraint("Vertical", 3))
sketch14.addConstraint(Sketcher.Constraint("Horizontal", 4))
sketch14.addConstraint(Sketcher.Constraint("Vertical", 5))
sketch14.addConstraint(Sketcher.Constraint("Horizontal", 6))
sketch14.addConstraint(Sketcher.Constraint("Vertical", 7))
sketch14.addConstraint(Sketcher.Constraint("Horizontal", 3, 2, 4, 2))
sketch14.addConstraint(Sketcher.Constraint("Horizontal", 2, 2, 5, 2))
sketch14.addConstraint(Sketcher.Constraint("DistanceX", 4, 2, 4, 1, 3.0))
sketch14.addConstraint(Sketcher.Constraint("DistanceY", 0, 2, -1, 1, 13.0))
sketch14.addConstraint(Sketcher.Constraint("DistanceX", 0, 2, 0, 1, 3.26))
sketch14.addConstraint(Sketcher.Constraint("DistanceY", 1, 2, 1, 1, 5.25))
sketch14.addConstraint(Sketcher.Constraint("DistanceX", 4, 2, 0, 2, 11.5))
sketch14.addConstraint(Sketcher.Constraint("DistanceX", -1, 1, 0, 2, 30.86242))
pad13 = doc.addObject("PartDesign::Pad", "Pad012")
body.addObject(pad13)
pad13.Profile = sketch14
pad13.Length = 35

# Sketch on XY plane
sketch15 = doc.addObject("Sketcher::SketchObject", "Sketch014")
body.addObject(sketch15)
sketch15.AttachmentSupport = (doc.XY_Plane, [""])
sketch15.MapMode = "FlatFace"
sketch15.AttachmentOffset = App.Placement(V(0, 0, -13), App.Rotation())
add_polygon(sketch15, [(58.6, 30.9), (58.6, 27.1), (44.6, 27.1), (44.6, 30.9)])  # lines 0-3
add_polygon(sketch15, [(58.6, 26.1), (58.6, 22.4), (44.6, 22.4), (44.6, 26.1)])  # lines 4-7
sketch15.addConstraint(Sketcher.Constraint("Vertical", 0))
sketch15.addConstraint(Sketcher.Constraint("Horizontal", 1))
sketch15.addConstraint(Sketcher.Constraint("Vertical", 2))
sketch15.addConstraint(Sketcher.Constraint("Horizontal", 3))
sketch15.addConstraint(Sketcher.Constraint("Vertical", 4))
sketch15.addConstraint(Sketcher.Constraint("Horizontal", 5))
sketch15.addConstraint(Sketcher.Constraint("Vertical", 6))
sketch15.addConstraint(Sketcher.Constraint("Horizontal", 7))
sketch15.addConstraint(Sketcher.Constraint("Vertical", 3, 2, 4, 2))
sketch15.addConstraint(Sketcher.Constraint("Vertical", 2, 2, 5, 2))
sketch15.addConstraint(Sketcher.Constraint("DistanceX", 1, 2, 1, 1, 14.0))
sketch15.addConstraint(Sketcher.Constraint("DistanceY", 0, 2, 0, 1, 3.74))
sketch15.addConstraint(Sketcher.Constraint("DistanceY", 4, 2, 4, 1, 3.75))
sketch15.addConstraint(Sketcher.Constraint("DistanceY", 4, 2, 3, 2, 8.5))
sketch15.addConstraint(Sketcher.Constraint("DistanceX", -1, 1, 0, 2, 58.617261))
sketch15.addConstraint(Sketcher.Constraint("DistanceY", -1, 1, 0, 2, 27.12242))
pad14 = doc.addObject("PartDesign::Pad", "Pad013")
body.addObject(pad14)
pad14.Profile = sketch15
pad14.Length = 5
pad14.Reversed = True

# Sketch on YZ plane
sketch16 = doc.addObject("Sketcher::SketchObject", "Sketch015")
body.addObject(sketch16)
sketch16.AttachmentSupport = (doc.YZ_Plane, [""])
sketch16.MapMode = "FlatFace"
sketch16.AttachmentOffset = App.Placement(V(0, 0, 58.617261), App.Rotation())
add_polygon(sketch16, [(27.1, -18), (27.1, -13), (26.16, -13), (26.16, -18), (22.36, -18), (22.36, -18.25), (30.86, -18.25), (30.86, -18)])  # lines 0-7
sketch16.addConstraint(Sketcher.Constraint("Vertical", 0))
sketch16.addConstraint(Sketcher.Constraint("Horizontal", 1))
sketch16.addConstraint(Sketcher.Constraint("Vertical", 2))
sketch16.addConstraint(Sketcher.Constraint("Horizontal", 3))
sketch16.addConstraint(Sketcher.Constraint("Vertical", 4))
sketch16.addConstraint(Sketcher.Constraint("Horizontal", 5))
sketch16.addConstraint(Sketcher.Constraint("Vertical", 6))
sketch16.addConstraint(Sketcher.Constraint("Horizontal", 7))
sketch16.addConstraint(Sketcher.Constraint("Horizontal", 3, 2, 6, 2))
sketch16.addConstraint(Sketcher.Constraint("DistanceY", 0, 1, 0, 2, 5.0))
sketch16.addConstraint(Sketcher.Constraint("DistanceX", 5, 1, 5, 2, 8.5))
sketch16.addConstraint(Sketcher.Constraint("DistanceY", 0, 2, -1, 1, 13.0))
sketch16.addConstraint(Sketcher.Constraint("DistanceX", 7, 2, 7, 1, 3.76))
sketch16.addConstraint(Sketcher.Constraint("DistanceY", 4, 2, 4, 1, 0.25))
sketch16.addConstraint(Sketcher.Constraint("DistanceX", 1, 2, 1, 1, 0.946575))
sketch16.addConstraint(Sketcher.Constraint("DistanceX", -1, 1, 0, 2, 27.10242))
pad15 = doc.addObject("PartDesign::Pad", "Pad014")
body.addObject(pad15)
pad15.Profile = sketch16
pad15.Length = 11
pad15.Reversed = True

# Sketch on YZ plane
sketch17 = doc.addObject("Sketcher::SketchObject", "Sketch016")
body.addObject(sketch17)
sketch17.AttachmentSupport = (doc.YZ_Plane, [""])
sketch17.MapMode = "FlatFace"
sketch17.AttachmentOffset = App.Placement(V(0, 0, 47.617261), App.Rotation())
add_polygon(sketch17, [(30.86, -18.25), (22.36, -18.25), (22.36, -18), (30.86, -18)])  # lines 0-3
sketch17.addConstraint(Sketcher.Constraint("Horizontal", 0))
sketch17.addConstraint(Sketcher.Constraint("Vertical", 1))
sketch17.addConstraint(Sketcher.Constraint("Horizontal", 2))
sketch17.addConstraint(Sketcher.Constraint("Vertical", 3))
sketch17.addConstraint(Sketcher.Constraint("DistanceX", 0, 2, 0, 1, 8.5))
sketch17.addConstraint(Sketcher.Constraint("DistanceY", 1, 2, -1, 1, 18.0))
sketch17.addConstraint(Sketcher.Constraint("DistanceY", 1, 1, 1, 2, 0.25))
sketch17.addConstraint(Sketcher.Constraint("DistanceX", -1, 1, 0, 2, 22.36242))
pad16 = doc.addObject("PartDesign::Pad", "Pad015")
body.addObject(pad16)
pad16.Profile = sketch17
pad16.Length = 3
pad16.Reversed = True

# Sketch on XY plane
sketch18 = doc.addObject("Sketcher::SketchObject", "Sketch017")
body.addObject(sketch18)
sketch18.AttachmentSupport = (doc.XY_Plane, [""])
sketch18.MapMode = "FlatFace"
sketch18.AttachmentOffset = App.Placement(V(0, 0, -18.25), App.Rotation())
add_polygon(sketch18, [(48, 34), (48, 19), (21, 19), (21, 34)])  # lines 0-3
add_polygon(sketch18, [(24, 22), (45, 22), (45, 31), (24, 31)])  # lines 4-7
sketch18.addConstraint(Sketcher.Constraint("Vertical", 0))
sketch18.addConstraint(Sketcher.Constraint("Horizontal", 1))
sketch18.addConstraint(Sketcher.Constraint("Vertical", 2))
sketch18.addConstraint(Sketcher.Constraint("Horizontal", 3))
sketch18.addConstraint(Sketcher.Constraint("Horizontal", 4))
sketch18.addConstraint(Sketcher.Constraint("Vertical", 5))
sketch18.addConstraint(Sketcher.Constraint("Horizontal", 6))
sketch18.addConstraint(Sketcher.Constraint("Vertical", 7))
sketch18.addConstraint(Sketcher.Constraint("DistanceX", 1, 2, 1, 1, 27.0))
sketch18.addConstraint(Sketcher.Constraint("DistanceX", 4, 1, 4, 2, 21.0))
sketch18.addConstraint(Sketcher.Constraint("DistanceY", 5, 1, 5, 2, 8.5))
sketch18.addConstraint(Sketcher.Constraint("DistanceX", 4, 2, 0, 2, 3.0))
sketch18.addConstraint(Sketcher.Constraint("DistanceY", 0, 2, 4, 2, 3.0))
sketch18.addConstraint(Sketcher.Constraint("DistanceY", 0, 2, 0, 1, 14.76))
sketch18.addConstraint(Sketcher.Constraint("DistanceX", -1, 1, 0, 2, 47.617261))
sketch18.addConstraint(Sketcher.Constraint("DistanceY", -1, 1, 0, 2, 19.36242))
pad17 = doc.addObject("PartDesign::Pad", "Pad016")
body.addObject(pad17)
pad17.Profile = sketch18
pad17.Length = 80
pad17.Reversed = True

# Sketch on YZ plane
sketch19 = doc.addObject("Sketcher::SketchObject", "Sketch018")
body.addObject(sketch19)
sketch19.AttachmentSupport = (doc.YZ_Plane, [""])
sketch19.MapMode = "FlatFace"
sketch19.AttachmentOffset = App.Placement(V(0, 0, 20.617261), App.Rotation())
sketch19.addGeometry(Part.Circle(V(26.6, -13, 0), V(0, 0, 1), 25), False)
sketch19.addGeometry(Part.Circle(V(15.4, -32.5, 0), V(0, 0, 1), 1.5), False)
sketch19.addGeometry(Part.Circle(V(4.1, -13, 0), V(0, 0, 1), 1.5), False)
sketch19.addGeometry(Part.Circle(V(15.4, 6.5, 0), V(0, 0, 1), 1.5), False)
sketch19.addGeometry(Part.Circle(V(37.9, -32.5, 0), V(0, 0, 1), 1.5), False)
sketch19.addGeometry(Part.Circle(V(26.6, -13, 0), V(0, 0, 1), 6), False)
sketch19.addGeometry(Part.Circle(V(37.9, 6.5, 0), V(0, 0, 1), 1.5), False)
sketch19.addGeometry(Part.Circle(V(49.1, -13, 0), V(0, 0, 1), 1.5), False)
sketch19.addConstraint(Sketcher.Constraint("Coincident", 5, 3, 0, 3))
sketch19.addConstraint(Sketcher.Constraint("Equal", 1, 2))
sketch19.addConstraint(Sketcher.Constraint("Equal", 2, 3))
sketch19.addConstraint(Sketcher.Constraint("Equal", 3, 4))
sketch19.addConstraint(Sketcher.Constraint("Equal", 4, 6))
sketch19.addConstraint(Sketcher.Constraint("Equal", 6, 7))
sketch19.addConstraint(Sketcher.Constraint("Horizontal", 0, 3, 2, 3))
sketch19.addConstraint(Sketcher.Constraint("Horizontal", 1, 3, 4, 3))
sketch19.addConstraint(Sketcher.Constraint("Horizontal", 3, 3, 6, 3))
sketch19.addConstraint(Sketcher.Constraint("Horizontal", 5, 3, 7, 3))
sketch19.addConstraint(Sketcher.Constraint("Vertical", 1, 3, 3, 3))
sketch19.addConstraint(Sketcher.Constraint("Vertical", 4, 3, 6, 3))
sketch19.addConstraint(Sketcher.Constraint("Diameter", 0, 50.0))
sketch19.addConstraint(Sketcher.Constraint("Diameter", 1, 3.0))
sketch19.addConstraint(Sketcher.Constraint("Diameter", 5, 12.0))
sketch19.addConstraint(Sketcher.Constraint("DistanceY", 0, 3, -1, 1, 13.0))
sketch19.addConstraint(Sketcher.Constraint("DistanceX", 2, 3, 0, 3, 22.51))
sketch19.addConstraint(Sketcher.Constraint("DistanceX", 1, 3, 4, 3, 22.51))
sketch19.addConstraint(Sketcher.Constraint("DistanceX", 0, 3, 7, 3, 22.51))
sketch19.addConstraint(Sketcher.Constraint("DistanceX", 1, 3, 0, 3, 11.255))
sketch19.addConstraint(Sketcher.Constraint("DistanceX", -1, 1, 0, 3, 26.61242))
sketch19.addConstraint(Sketcher.Constraint("DistanceY", 1, 3, -1, 1, 32.494232))
sketch19.addConstraint(Sketcher.Constraint("DistanceY", -1, 1, 3, 3, 6.494232))
pad18 = doc.addObject("PartDesign::Pad", "Pad017")
body.addObject(pad18)
pad18.Profile = sketch19
pad18.Length = 3
pad18.Reversed = True

doc.recompute()
